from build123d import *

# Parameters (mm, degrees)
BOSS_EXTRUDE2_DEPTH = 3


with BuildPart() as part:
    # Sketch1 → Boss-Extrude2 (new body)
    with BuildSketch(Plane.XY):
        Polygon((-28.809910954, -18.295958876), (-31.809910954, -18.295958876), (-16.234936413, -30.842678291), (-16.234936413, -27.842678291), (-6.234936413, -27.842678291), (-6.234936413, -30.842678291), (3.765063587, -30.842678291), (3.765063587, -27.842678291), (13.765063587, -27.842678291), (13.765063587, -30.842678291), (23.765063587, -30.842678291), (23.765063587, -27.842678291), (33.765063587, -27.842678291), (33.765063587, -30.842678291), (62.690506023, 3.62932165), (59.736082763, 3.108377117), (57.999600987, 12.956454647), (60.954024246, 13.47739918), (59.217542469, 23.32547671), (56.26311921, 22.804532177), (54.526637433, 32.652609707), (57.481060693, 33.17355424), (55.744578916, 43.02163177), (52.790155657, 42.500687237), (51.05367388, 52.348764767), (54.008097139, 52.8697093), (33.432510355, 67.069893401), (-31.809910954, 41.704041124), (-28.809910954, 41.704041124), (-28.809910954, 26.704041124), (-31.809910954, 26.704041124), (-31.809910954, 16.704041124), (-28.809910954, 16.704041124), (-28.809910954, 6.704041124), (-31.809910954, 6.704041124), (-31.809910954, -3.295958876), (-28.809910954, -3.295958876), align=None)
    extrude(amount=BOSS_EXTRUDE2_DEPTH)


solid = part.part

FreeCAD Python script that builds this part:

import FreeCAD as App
import Part
import Sketcher

V = App.Vector
Q = App.Units.Quantity

doc = App.newDocument("Part")
body = doc.addObject("PartDesign::Body", "Body")

# Sketch on XY plane
sketch1 = doc.addObject("Sketcher::SketchObject", "Sketch")
body.addObject(sketch1)
sketch1.AttachmentSupport = (doc.XY_Plane, [""])
sketch1.MapMode = "FlatFace"
sketch1.addGeometry([
    Part.LineSegment(V(-28.8, -18.3, 0), V(-31.8, -18.3, 0)),  # 0
    Part.LineSegment(V(-31.8, -18.3, 0), V(-16.2, -30.8, 0)),  # 1
    Part.LineSegment(V(-16.2, -30.8, 0), V(-16.2, -27.8, 0)),  # 2
    Part.LineSegment(V(-16.2, -27.8, 0), V(-6.2, -27.8, 0)),  # 3
    Part.LineSegment(V(-6.2, -27.8, 0), V(-6.2, -30.8, 0)),  # 4
    Part.LineSegment(V(-6.2, -30.8, 0), V(3.8, -30.8, 0)),  # 5
    Part.LineSegment(V(3.8, -30.8, 0), V(3.8, -27.8, 0)),  # 6
    Part.LineSegment(V(3.8, -27.8, 0), V(13.8, -27.8, 0)),  # 7
    Part.LineSegment(V(13.8, -27.8, 0), V(13.8, -30.8, 0)),  # 8
    Part.LineSegment(V(13.8, -30.8, 0), V(23.8, -30.8, 0)),  # 9
    Part.LineSegment(V(23.8, -30.8, 0), V(23.8, -27.8, 0)),  # 10
    Part.LineSegment(V(23.8, -27.8, 0), V(33.8, -27.8, 0)),  # 11
    Part.LineSegment(V(33.8, -27.8, 0), V(33.8, -30.8, 0)),  # 12
    Part.LineSegment(V(33.8, -30.8, 0), V(62.7, 3.6, 0)),  # 13
    Part.LineSegment(V(62.7, 3.6, 0), V(59.7, 3.1, 0)),  # 14
    Part.LineSegment(V(59.7, 3.1, 0), V(58, 13, 0)),  # 15
    Part.LineSegment(V(58, 13, 0), V(61, 13.5, 0)),  # 16
    Part.LineSegment(V(61, 13.5, 0), V(59.2, 23.3, 0)),  # 17
    Part.LineSegment(V(59.2, 23.3, 0), V(56.3, 22.8, 0)),  # 18
    Part.LineSegment(V(56.3, 22.8, 0), V(54.5, 32.7, 0)),  # 19
    Part.LineSegment(V(54.5, 32.7, 0), V(57.5, 33.2, 0)),  # 20
    Part.LineSegment(V(57.5, 33.2, 0), V(55.7, 43, 0)),  # 21
    Part.LineSegment(V(55.7, 43, 0), V(52.8, 42.5, 0)),  # 22
    Part.LineSegment(V(52.8, 42.5, 0), V(51.1, 52.3, 0)),  # 23
    Part.LineSegment(V(51.1, 52.3, 0), V(54, 52.9, 0)),  # 24
    Part.LineSegment(V(54, 52.9, 0), V(33.4, 67.1, 0)),  # 25
    Part.LineSegment(V(33.4, 67.1, 0), V(-31.8, 41.7, 0)),  # 26
    Part.LineSegment(V(-31.8, 41.7, 0), V(-28.8, 41.7, 0)),  # 27
    Part.LineSegment(V(-28.8, 41.7, 0), V(-28.8, 26.7, 0)),  # 28
    Part.LineSegment(V(-28.8, 26.7, 0), V(-31.8, 26.7, 0)),  # 29
    Part.LineSegment(V(-31.8, 26.7, 0), V(-31.8, 16.7, 0)),  # 30
    Part.LineSegment(V(-31.8, 16.7, 0), V(-28.8, 16.7, 0)),  # 31
    Part.LineSegment(V(-28.8, 16.7, 0), V(-28.8, 6.7, 0)),  # 32
    Part.LineSegment(V(-28.8, 6.7, 0), V(-31.8, 6.7, 0)),  # 33
    Part.LineSegment(V(-31.8, 6.7, 0), V(-31.8, -3.3, 0)),  # 34
    Part.LineSegment(V(-31.8, -3.3, 0), V(-28.8, -3.3, 0)),  # 35
    Part.LineSegment(V(-28.8, -3.3, 0), V(-28.8, -18.3, 0)),  # 36
], False)
sketch1.addConstraint([
    Sketcher.Constraint("Coincident", 0, 2, 1, 1),
    Sketcher.Constraint("Coincident", 1, 2, 2, 1),
    Sketcher.Constraint("Coincident", 2, 2, 3, 1),
    Sketcher.Constraint("Coincident", 3, 2, 4, 1),
    Sketcher.Constraint("Coincident", 4, 2, 5, 1),
    Sketcher.Constraint("Coincident", 5, 2, 6, 1),
    Sketcher.Constraint("Coincident", 6, 2, 7, 1),
    Sketcher.Constraint("Coincident", 7, 2, 8, 1),
    Sketcher.Constraint("Coincident", 8, 2, 9, 1),
    Sketcher.Constraint("Coincident", 9, 2, 10, 1),
    Sketcher.Constraint("Coincident", 10, 2, 11, 1),
    Sketcher.Constraint("Coincident", 11, 2, 12, 1),
    Sketcher.Constraint("Coincident", 12, 2, 13, 1),
    Sketcher.Constraint("Coincident", 13, 2, 14, 1),
    Sketcher.Constraint("Coincident", 14, 2, 15, 1),
    Sketcher.Constraint("Coincident", 15, 2, 16, 1),
    Sketcher.Constraint("Coincident", 16, 2, 17, 1),
    Sketcher.Constraint("Coincident", 17, 2, 18, 1),
    Sketcher.Constraint("Coincident", 18, 2, 19, 1),
    Sketcher.Constraint("Coincident", 19, 2, 20, 1),
    Sketcher.Constraint("Coincident", 20, 2, 21, 1),
    Sketcher.Constraint("Coincident", 21, 2, 22, 1),
    Sketcher.Constraint("Coincident", 22, 2, 23, 1),
    Sketcher.Constraint("Coincident", 23, 2, 24, 1),
    Sketcher.Constraint("Coincident", 24, 2, 25, 1),
    Sketcher.Constraint("Coincident", 25, 2, 26, 1),
    Sketcher.Constraint("Coincident", 26, 2, 27, 1),
    Sketcher.Constraint("Coincident", 27, 2, 28, 1),
    Sketcher.Constraint("Coincident", 28, 2, 29, 1),
    Sketcher.Constraint("Coincident", 29, 2, 30, 1),
    Sketcher.Constraint("Coincident", 30, 2, 31, 1),
    Sketcher.Constraint("Coincident", 31, 2, 32, 1),
    Sketcher.Constraint("Coincident", 32, 2, 33, 1),
    Sketcher.Constraint("Coincident", 33, 2, 34, 1),
    Sketcher.Constraint("Coincident", 34, 2, 35, 1),
    Sketcher.Constraint("Coincident", 35, 2, 36, 1),
    Sketcher.Constraint("Coincident", 36, 2, 0, 1),
    Sketcher.Constraint("Horizontal", 0),
    Sketcher.Constraint("Vertical", 2),
    Sketcher.Constraint("Horizontal", 3),
    Sketcher.Constraint("Vertical", 4),
    Sketcher.Constraint("Horizontal", 5),
    Sketcher.Constraint("Vertical", 6),
    Sketcher.Constraint("Horizontal", 7),
    Sketcher.Constraint("Vertical", 8),
    Sketcher.Constraint("Horizontal", 9),
    Sketcher.Constraint("Vertical", 10),
    Sketcher.Constraint("Horizontal", 11),
    Sketcher.Constraint("Vertical", 12),
    Sketcher.Constraint("Horizontal", 27),
    Sketcher.Constraint("Vertical", 28),
    Sketcher.Constraint("Horizontal", 29),
    Sketcher.Constraint("Vertical", 30),
    Sketcher.Constraint("Horizontal", 31),
    Sketcher.Constraint("Vertical", 32),
    Sketcher.Constraint("Horizontal", 33),
    Sketcher.Constraint("Vertical", 34),
    Sketcher.Constraint("Horizontal", 35),
    Sketcher.Constraint("Vertical", 36),
    Sketcher.Constraint("Perpendicular", 14, 15),
    Sketcher.Constraint("Perpendicular", 15, 16),
    Sketcher.Constraint("Perpendicular", 16, 17),
    Sketcher.Constraint("Perpendicular", 17, 18),
    Sketcher.Constraint("Perpendicular", 18, 19),
    Sketcher.Constraint("Perpendicular", 19, 20),
    Sketcher.Constraint("Perpendicular", 20, 21),
    Sketcher.Constraint("Perpendicular", 21, 22),
    Sketcher.Constraint("Perpendicular", 22, 23),
    Sketcher.Constraint("Perpendicular", 23, 24),
    Sketcher.Constraint("Horizontal", 1, 2, 4, 2),
    Sketcher.Constraint("Horizontal", 3, 2, 6, 2),
    Sketcher.Constraint("Horizontal", 5, 2, 8, 2),
    Sketcher.Constraint("Horizontal", 7, 2, 10, 2),
    Sketcher.Constraint("Horizontal", 9, 2, 12, 2),
    Sketcher.Constraint("Vertical", 0, 2, 26, 2),
    Sketcher.Constraint("Vertical", 26, 2, 29, 2),
    Sketcher.Constraint("Vertical", 28, 2, 31, 2),
    Sketcher.Constraint("Vertical", 30, 2, 33, 2),
    Sketcher.Constraint("Vertical", 32, 2, 35, 2),
    Sketcher.Constraint("Equal", 3, 5),
    Sketcher.Constraint("Equal", 5, 7),
    Sketcher.Constraint("Equal", 7, 9),
    Sketcher.Constraint("Equal", 9, 11),
    Sketcher.Constraint("Equal", 35, 2),
    Sketcher.Constraint("Equal", 11, 30),
    Sketcher.Constraint("Equal", 30, 32),
    Sketcher.Constraint("Equal", 32, 34),
    Sketcher.Constraint("Equal", 28, 36),
    Sketcher.Constraint("Equal", 14, 16),
    Sketcher.Constraint("Equal", 15, 17),
    Sketcher.Constraint("Equal", 16, 18),
    Sketcher.Constraint("Equal", 17, 19),
    Sketcher.Constraint("Equal", 18, 20),
    Sketcher.Constraint("Equal", 19, 21),
    Sketcher.Constraint("Equal", 20, 22),
    Sketcher.Constraint("Equal", 21, 23),
    Sketcher.Constraint("Equal", 22, 24),
    Sketcher.Constraint("DistanceX", 0, 2, 0, 1, 3.0),
    Sketcher.Constraint("DistanceX", 3, 1, 3, 2, 10.0),
    Sketcher.Constraint("DistanceY", 28, 2, 28, 1, 15.0),
    Sketcher.Constraint("Angle", 13, Q("50 deg")),
    Sketcher.Constraint("Angle", 14, Q("-170 deg")),
    Sketcher.Constraint("Distance", 1, 20.0),
    Sketcher.Constraint("Distance", 13, 45.0),
    Sketcher.Constraint("Distance", 14, 3.0),
    Sketcher.Constraint("Distance", 15, 10.0),
    Sketcher.Constraint("Distance", 25, 25.0),
    Sketcher.Constraint("Distance", 26, 70.0),
    Sketcher.Constraint("DistanceX", -1, 1, 15, 2, 57.999601),
    Sketcher.Constraint("DistanceY", -1, 1, 16, 2, 13.477399),
    Sketcher.Constraint("DistanceX", 0, 2, -1, 1, 31.809911),
])
pad1 = doc.addObject("PartDesign::Pad", "Pad")
body.addObject(pad1)
pad1.Profile = sketch1
pad1.Length = 3

doc.recompute()
